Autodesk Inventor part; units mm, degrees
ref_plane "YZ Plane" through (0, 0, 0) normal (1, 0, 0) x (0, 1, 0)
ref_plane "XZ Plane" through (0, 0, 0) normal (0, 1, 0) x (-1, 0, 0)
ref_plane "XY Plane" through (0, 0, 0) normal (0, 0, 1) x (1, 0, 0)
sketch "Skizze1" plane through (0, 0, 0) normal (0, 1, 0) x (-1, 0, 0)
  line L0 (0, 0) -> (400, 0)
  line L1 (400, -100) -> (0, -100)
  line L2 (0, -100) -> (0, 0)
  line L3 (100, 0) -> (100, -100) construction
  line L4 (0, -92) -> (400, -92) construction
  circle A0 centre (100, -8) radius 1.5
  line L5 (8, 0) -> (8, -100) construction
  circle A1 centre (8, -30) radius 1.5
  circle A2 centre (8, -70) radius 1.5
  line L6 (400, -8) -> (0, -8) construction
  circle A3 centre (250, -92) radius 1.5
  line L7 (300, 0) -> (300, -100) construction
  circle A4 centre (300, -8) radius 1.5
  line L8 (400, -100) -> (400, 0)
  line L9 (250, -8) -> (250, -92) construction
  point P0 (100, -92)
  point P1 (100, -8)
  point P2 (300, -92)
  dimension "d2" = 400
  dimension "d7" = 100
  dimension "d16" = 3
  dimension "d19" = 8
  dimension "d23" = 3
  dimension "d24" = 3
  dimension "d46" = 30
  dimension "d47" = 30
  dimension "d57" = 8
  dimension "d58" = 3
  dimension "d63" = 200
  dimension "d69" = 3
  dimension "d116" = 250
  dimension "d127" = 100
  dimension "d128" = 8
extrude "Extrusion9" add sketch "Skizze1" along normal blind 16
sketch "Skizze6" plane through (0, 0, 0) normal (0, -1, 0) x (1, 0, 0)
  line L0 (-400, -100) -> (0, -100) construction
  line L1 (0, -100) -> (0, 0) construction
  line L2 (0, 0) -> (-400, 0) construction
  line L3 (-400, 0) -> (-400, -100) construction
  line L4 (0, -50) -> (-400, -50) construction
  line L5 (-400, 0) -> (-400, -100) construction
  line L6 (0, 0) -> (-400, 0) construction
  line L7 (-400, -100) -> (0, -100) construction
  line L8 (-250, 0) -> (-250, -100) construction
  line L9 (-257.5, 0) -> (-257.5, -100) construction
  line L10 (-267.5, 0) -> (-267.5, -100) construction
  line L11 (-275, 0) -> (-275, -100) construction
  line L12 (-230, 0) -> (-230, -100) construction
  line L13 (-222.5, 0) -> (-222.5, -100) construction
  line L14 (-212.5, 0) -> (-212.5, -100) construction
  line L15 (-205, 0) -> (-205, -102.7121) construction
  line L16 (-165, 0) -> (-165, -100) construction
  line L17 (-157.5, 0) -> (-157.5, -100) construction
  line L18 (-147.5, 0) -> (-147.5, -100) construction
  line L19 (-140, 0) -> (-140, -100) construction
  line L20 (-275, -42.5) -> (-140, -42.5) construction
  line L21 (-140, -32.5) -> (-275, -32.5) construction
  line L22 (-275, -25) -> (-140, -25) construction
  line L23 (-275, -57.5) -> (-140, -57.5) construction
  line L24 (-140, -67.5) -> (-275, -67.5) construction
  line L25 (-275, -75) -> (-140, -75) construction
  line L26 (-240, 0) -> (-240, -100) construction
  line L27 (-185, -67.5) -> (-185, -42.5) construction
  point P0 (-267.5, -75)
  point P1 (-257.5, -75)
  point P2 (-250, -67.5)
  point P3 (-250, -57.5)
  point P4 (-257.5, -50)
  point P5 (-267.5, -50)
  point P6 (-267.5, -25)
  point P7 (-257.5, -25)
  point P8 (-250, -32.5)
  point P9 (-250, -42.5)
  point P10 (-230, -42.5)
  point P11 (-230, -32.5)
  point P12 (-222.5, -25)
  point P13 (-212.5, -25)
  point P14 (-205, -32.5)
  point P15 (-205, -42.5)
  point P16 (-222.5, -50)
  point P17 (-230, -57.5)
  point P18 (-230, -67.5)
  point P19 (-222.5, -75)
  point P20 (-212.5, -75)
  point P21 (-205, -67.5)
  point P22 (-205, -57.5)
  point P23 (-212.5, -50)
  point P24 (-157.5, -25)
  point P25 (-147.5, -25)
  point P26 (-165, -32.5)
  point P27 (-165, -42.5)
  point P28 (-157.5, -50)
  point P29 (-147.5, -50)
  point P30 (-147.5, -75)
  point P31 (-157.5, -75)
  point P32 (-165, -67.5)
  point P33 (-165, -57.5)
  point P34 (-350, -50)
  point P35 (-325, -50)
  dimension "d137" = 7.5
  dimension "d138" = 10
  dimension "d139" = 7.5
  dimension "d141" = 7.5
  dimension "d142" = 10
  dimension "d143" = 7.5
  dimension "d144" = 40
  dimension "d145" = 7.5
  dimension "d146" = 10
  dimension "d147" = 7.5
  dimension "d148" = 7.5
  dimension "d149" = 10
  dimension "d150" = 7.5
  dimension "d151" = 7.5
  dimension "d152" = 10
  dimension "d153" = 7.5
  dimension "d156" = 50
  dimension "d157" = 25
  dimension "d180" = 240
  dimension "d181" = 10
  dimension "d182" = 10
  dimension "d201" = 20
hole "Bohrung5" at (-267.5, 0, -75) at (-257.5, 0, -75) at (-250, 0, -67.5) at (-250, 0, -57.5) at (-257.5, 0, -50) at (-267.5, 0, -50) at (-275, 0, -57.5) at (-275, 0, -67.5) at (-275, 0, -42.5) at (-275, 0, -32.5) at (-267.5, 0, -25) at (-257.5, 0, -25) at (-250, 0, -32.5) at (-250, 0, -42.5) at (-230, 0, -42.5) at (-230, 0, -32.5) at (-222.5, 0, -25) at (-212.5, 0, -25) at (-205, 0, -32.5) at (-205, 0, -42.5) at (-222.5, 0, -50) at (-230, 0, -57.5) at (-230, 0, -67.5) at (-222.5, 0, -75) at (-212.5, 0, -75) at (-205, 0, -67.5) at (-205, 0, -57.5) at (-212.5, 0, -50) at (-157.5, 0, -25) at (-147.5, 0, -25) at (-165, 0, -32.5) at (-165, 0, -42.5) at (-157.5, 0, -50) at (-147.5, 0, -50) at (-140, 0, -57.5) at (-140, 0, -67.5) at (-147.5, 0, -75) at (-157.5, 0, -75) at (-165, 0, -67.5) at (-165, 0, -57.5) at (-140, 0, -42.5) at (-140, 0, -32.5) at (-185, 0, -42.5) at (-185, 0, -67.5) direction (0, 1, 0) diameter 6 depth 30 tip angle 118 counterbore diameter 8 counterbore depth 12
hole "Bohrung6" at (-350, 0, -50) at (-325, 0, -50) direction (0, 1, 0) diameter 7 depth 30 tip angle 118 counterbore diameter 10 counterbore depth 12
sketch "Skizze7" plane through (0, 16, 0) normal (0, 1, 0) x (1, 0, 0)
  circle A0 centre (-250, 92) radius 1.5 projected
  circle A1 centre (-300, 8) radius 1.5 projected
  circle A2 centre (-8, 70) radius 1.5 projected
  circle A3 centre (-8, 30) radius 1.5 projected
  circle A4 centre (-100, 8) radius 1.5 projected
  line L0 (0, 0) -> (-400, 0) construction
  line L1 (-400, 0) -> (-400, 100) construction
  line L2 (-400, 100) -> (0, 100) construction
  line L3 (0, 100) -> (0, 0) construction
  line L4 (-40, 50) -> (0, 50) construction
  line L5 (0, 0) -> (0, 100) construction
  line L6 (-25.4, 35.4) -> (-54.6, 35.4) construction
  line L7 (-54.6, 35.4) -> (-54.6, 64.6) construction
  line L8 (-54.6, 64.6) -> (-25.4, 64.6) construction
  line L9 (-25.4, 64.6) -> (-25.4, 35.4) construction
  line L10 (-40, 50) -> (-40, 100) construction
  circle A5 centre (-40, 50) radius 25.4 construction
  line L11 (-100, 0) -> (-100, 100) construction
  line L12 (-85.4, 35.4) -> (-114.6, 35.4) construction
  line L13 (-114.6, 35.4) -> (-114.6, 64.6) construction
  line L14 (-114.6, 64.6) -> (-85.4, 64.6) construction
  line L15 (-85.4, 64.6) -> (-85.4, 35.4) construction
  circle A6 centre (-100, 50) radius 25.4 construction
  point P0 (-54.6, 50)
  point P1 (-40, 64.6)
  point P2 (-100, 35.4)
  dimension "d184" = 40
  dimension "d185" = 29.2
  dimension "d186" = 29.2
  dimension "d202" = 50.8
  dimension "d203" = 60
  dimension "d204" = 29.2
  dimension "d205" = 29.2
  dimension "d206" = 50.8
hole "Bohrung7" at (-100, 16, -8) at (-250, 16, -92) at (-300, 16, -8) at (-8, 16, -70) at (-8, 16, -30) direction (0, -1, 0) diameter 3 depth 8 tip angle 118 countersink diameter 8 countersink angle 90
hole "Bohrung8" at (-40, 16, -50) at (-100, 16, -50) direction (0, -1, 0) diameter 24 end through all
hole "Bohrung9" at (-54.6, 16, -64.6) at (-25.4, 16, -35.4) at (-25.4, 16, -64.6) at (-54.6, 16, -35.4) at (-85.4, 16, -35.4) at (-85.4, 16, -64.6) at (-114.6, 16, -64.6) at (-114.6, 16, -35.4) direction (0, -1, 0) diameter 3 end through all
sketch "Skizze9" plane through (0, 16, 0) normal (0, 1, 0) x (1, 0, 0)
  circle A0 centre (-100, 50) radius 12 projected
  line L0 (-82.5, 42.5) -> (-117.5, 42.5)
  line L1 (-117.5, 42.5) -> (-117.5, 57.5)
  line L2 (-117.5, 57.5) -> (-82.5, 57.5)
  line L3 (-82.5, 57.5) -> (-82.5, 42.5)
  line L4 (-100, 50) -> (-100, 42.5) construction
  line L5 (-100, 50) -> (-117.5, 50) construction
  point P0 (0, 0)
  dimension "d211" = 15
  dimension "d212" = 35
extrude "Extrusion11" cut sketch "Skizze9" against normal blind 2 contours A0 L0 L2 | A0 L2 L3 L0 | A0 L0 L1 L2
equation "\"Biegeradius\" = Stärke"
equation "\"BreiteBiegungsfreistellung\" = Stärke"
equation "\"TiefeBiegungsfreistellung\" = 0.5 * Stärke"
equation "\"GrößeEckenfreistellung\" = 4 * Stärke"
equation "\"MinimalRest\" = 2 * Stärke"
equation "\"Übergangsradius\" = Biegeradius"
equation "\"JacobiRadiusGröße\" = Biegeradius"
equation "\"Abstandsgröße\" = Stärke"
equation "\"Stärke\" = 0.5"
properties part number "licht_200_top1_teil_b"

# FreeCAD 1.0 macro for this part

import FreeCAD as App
import Part
import Sketcher

V = App.Vector


def add_polygon(sketch, points):
    """Adds a closed chain of lines whose ends are joined by coincident constraints."""
    first, n = sketch.GeometryCount, len(points)
    for a, b in zip(points, points[1:] + points[:1]):
        sketch.addGeometry(Part.LineSegment(App.Vector(*a, 0), App.Vector(*b, 0)), False)
    for i in range(n):
        sketch.addConstraint(Sketcher.Constraint("Coincident", first + i, 2, first + (i + 1) % n, 1))

doc = App.newDocument("Part")
params = doc.addObject("Spreadsheet::Sheet", "Params")
for row, (alias, value) in enumerate([
    ("sketch1_diameter", "3 mm"),
    ("sketch1_width", "400 mm"),
    ("sketch1_height", "100 mm"),
    ("pad1_length", "16 mm"),
    ("sketch2_diameter", "6 mm"),
    ("hole_diameter", "6 mm"),
    ("hole_depth", "30 mm"),
    ("hole_cbore_diameter", "8 mm"),
    ("hole_cbore_depth", "12 mm"),
    ("sketch3_diameter", "7 mm"),
    ("hole2_diameter", "7 mm"),
    ("hole2_depth", "30 mm"),
    ("hole2_cbore_diameter", "10 mm"),
    ("hole2_cbore_depth", "12 mm"),
    ("sketch4_diameter", "3 mm"),
    ("hole3_diameter", "3 mm"),
    ("hole3_depth", "8 mm"),
    ("hole3_csink_diameter", "8 mm"),
    ("sketch5_diameter", "24 mm"),
    ("hole4_diameter", "24 mm"),
    ("sketch6_diameter", "3 mm"),
    ("hole5_diameter", "3 mm"),
    ("sketch7_width", "35 mm"),
    ("sketch7_height", "15 mm"),
    ("pocket1_length", "2 mm"),
], start=1):
    params.set(f"A{row}", alias)
    params.set(f"B{row}", "=" + value)
    params.setAlias(f"B{row}", alias)

body = doc.addObject("PartDesign::Body", "Body")

# Sketch on XZ plane
sketch1 = body.newObject("Sketcher::SketchObject", "Sketch")
sketch1.AttachmentSupport = (doc.getObject("XZ_Plane"), [""])
sketch1.MapMode = "FlatFace"
add_polygon(sketch1, [(-400, 0), (0, 0), (0, -100), (-400, -100)])  # lines 0-3
sketch1.addGeometry(Part.Circle(V(-8, -70, 0), V(0, 0, 1), 1.5), False)  # 4
sketch1.addGeometry(Part.Circle(V(-250, -92, 0), V(0, 0, 1), 1.5), False)  # 5
sketch1.addGeometry(Part.Circle(V(-8, -30, 0), V(0, 0, 1), 1.5), False)  # 6
sketch1.addGeometry(Part.Circle(V(-100, -8, 0), V(0, 0, 1), 1.5), False)  # 7
sketch1.addGeometry(Part.Circle(V(-300, -8, 0), V(0, 0, 1), 1.5), False)  # 8
sketch1.addConstraint([
    Sketcher.Constraint("Horizontal", 0),
    Sketcher.Constraint("Vertical", 1),
    Sketcher.Constraint("Horizontal", 2),
    Sketcher.Constraint("Vertical", 3),
    Sketcher.Constraint("Coincident", 0, 2, -1, 1),
    Sketcher.Constraint("Equal", 4, 5),
    Sketcher.Constraint("Equal", 5, 6),
    Sketcher.Constraint("Equal", 6, 7),
    Sketcher.Constraint("Equal", 7, 8),
    Sketcher.Constraint("Horizontal", 7, 3, 8, 3),
    Sketcher.Constraint("Vertical", 4, 3, 6, 3),
    Sketcher.Constraint("Diameter", 4, 3.0),
    Sketcher.Constraint("DistanceX", 0, 1, 0, 2, 400.0),
    Sketcher.Constraint("DistanceY", 1, 2, 1, 1, 100.0),
    Sketcher.Constraint("DistanceX", 4, 3, -1, 1, 8.0),
    Sketcher.Constraint("DistanceX", 5, 3, -1, 1, 250.0),
    Sketcher.Constraint("DistanceY", 6, 3, -1, 1, 30.0),
    Sketcher.Constraint("DistanceX", 7, 3, -1, 1, 100.0),
    Sketcher.Constraint("DistanceY", 7, 3, -1, 1, 8.0),
    Sketcher.Constraint("DistanceX", 8, 3, 7, 3, 200.0),
    Sketcher.Constraint("DistanceY", 1, 2, 4, 3, 30.0),
    Sketcher.Constraint("DistanceY", 1, 2, 5, 3, 8.0),
])
sketch1.setExpression("Constraints[15]", "Params.sketch1_diameter")
sketch1.setExpression("Constraints[16]", "Params.sketch1_width")
sketch1.setExpression("Constraints[17]", "Params.sketch1_height")
pad1 = body.newObject("PartDesign::Pad", "Pad")
pad1.Profile = sketch1
pad1.setExpression("Length", "Params.pad1_length")
pad1.Reversed = True

# Sketch on XZ plane
sketch2 = body.newObject("Sketcher::SketchObject", "Sketch001")
sketch2.AttachmentSupport = (doc.getObject("XZ_Plane"), [""])
sketch2.MapMode = "FlatFace"
sketch2.addGeometry([
    Part.Circle(V(-267.5, -75, 0), V(0, 0, 1), 3),  # 0
    Part.Circle(V(-257.5, -75, 0), V(0, 0, 1), 3),  # 1
    Part.Circle(V(-250, -67.5, 0), V(0, 0, 1), 3),  # 2
    Part.Circle(V(-250, -57.5, 0), V(0, 0, 1), 3),  # 3
    Part.Circle(V(-257.5, -50, 0), V(0, 0, 1), 3),  # 4
    Part.Circle(V(-267.5, -50, 0), V(0, 0, 1), 3),  # 5
    Part.Circle(V(-275, -57.5, 0), V(0, 0, 1), 3),  # 6
    Part.Circle(V(-275, -67.5, 0), V(0, 0, 1), 3),  # 7
    Part.Circle(V(-275, -42.5, 0), V(0, 0, 1), 3),  # 8
    Part.Circle(V(-275, -32.5, 0), V(0, 0, 1), 3),  # 9
    Part.Circle(V(-267.5, -25, 0), V(0, 0, 1), 3),  # 10
    Part.Circle(V(-257.5, -25, 0), V(0, 0, 1), 3),  # 11
    Part.Circle(V(-250, -32.5, 0), V(0, 0, 1), 3),  # 12
    Part.Circle(V(-250, -42.5, 0), V(0, 0, 1), 3),  # 13
    Part.Circle(V(-230, -42.5, 0), V(0, 0, 1), 3),  # 14
    Part.Circle(V(-230, -32.5, 0), V(0, 0, 1), 3),  # 15
    Part.Circle(V(-222.5, -25, 0), V(0, 0, 1), 3),  # 16
    Part.Circle(V(-212.5, -25, 0), V(0, 0, 1), 3),  # 17
    Part.Circle(V(-205, -32.5, 0), V(0, 0, 1), 3),  # 18
    Part.Circle(V(-205, -42.5, 0), V(0, 0, 1), 3),  # 19
    Part.Circle(V(-222.5, -50, 0), V(0, 0, 1), 3),  # 20
    Part.Circle(V(-230, -57.5, 0), V(0, 0, 1), 3),  # 21
    Part.Circle(V(-230, -67.5, 0), V(0, 0, 1), 3),  # 22
    Part.Circle(V(-222.5, -75, 0), V(0, 0, 1), 3),  # 23
    Part.Circle(V(-212.5, -75, 0), V(0, 0, 1), 3),  # 24
    Part.Circle(V(-205, -67.5, 0), V(0, 0, 1), 3),  # 25
    Part.Circle(V(-205, -57.5, 0), V(0, 0, 1), 3),  # 26
    Part.Circle(V(-212.5, -50, 0), V(0, 0, 1), 3),  # 27
    Part.Circle(V(-157.5, -25, 0), V(0, 0, 1), 3),  # 28
    Part.Circle(V(-147.5, -25, 0), V(0, 0, 1), 3),  # 29
    Part.Circle(V(-165, -32.5, 0), V(0, 0, 1), 3),  # 30
    Part.Circle(V(-165, -42.5, 0), V(0, 0, 1), 3),  # 31
    Part.Circle(V(-157.5, -50, 0), V(0, 0, 1), 3),  # 32
    Part.Circle(V(-147.5, -50, 0), V(0, 0, 1), 3),  # 33
    Part.Circle(V(-140, -57.5, 0), V(0, 0, 1), 3),  # 34
    Part.Circle(V(-140, -67.5, 0), V(0, 0, 1), 3),  # 35
    Part.Circle(V(-147.5, -75, 0), V(0, 0, 1), 3),  # 36
    Part.Circle(V(-157.5, -75, 0), V(0, 0, 1), 3),  # 37
    Part.Circle(V(-165, -67.5, 0), V(0, 0, 1), 3),  # 38
    Part.Circle(V(-165, -57.5, 0), V(0, 0, 1), 3),  # 39
    Part.Circle(V(-140, -42.5, 0), V(0, 0, 1), 3),  # 40
    Part.Circle(V(-140, -32.5, 0), V(0, 0, 1), 3),  # 41
    Part.Circle(V(-185, -42.5, 0), V(0, 0, 1), 3),  # 42
    Part.Circle(V(-185, -67.5, 0), V(0, 0, 1), 3),  # 43
], False)
sketch2.addConstraint([
    Sketcher.Constraint("Equal", 0, 1),
    Sketcher.Constraint("Equal", 1, 2),
    Sketcher.Constraint("Equal", 2, 3),
    Sketcher.Constraint("Equal", 3, 4),
    Sketcher.Constraint("Equal", 4, 5),
    Sketcher.Constraint("Equal", 5, 6),
    Sketcher.Constraint("Equal", 6, 7),
    Sketcher.Constraint("Equal", 7, 8),
    Sketcher.Constraint("Equal", 8, 9),
    Sketcher.Constraint("Equal", 9, 10),
    Sketcher.Constraint("Equal", 10, 11),
    Sketcher.Constraint("Equal", 11, 12),
    Sketcher.Constraint("Equal", 12, 13),
    Sketcher.Constraint("Equal", 13, 14),
    Sketcher.Constraint("Equal", 14, 15),
    Sketcher.Constraint("Equal", 15, 16),
    Sketcher.Constraint("Equal", 16, 17),
    Sketcher.Constraint("Equal", 17, 18),
    Sketcher.Constraint("Equal", 18, 19),
    Sketcher.Constraint("Equal", 19, 20),
    Sketcher.Constraint("Equal", 20, 21),
    Sketcher.Constraint("Equal", 21, 22),
    Sketcher.Constraint("Equal", 22, 23),
    Sketcher.Constraint("Equal", 23, 24),
    Sketcher.Constraint("Equal", 24, 25),
    Sketcher.Constraint("Equal", 25, 26),
    Sketcher.Constraint("Equal", 26, 27),
    Sketcher.Constraint("Equal", 27, 28),
    Sketcher.Constraint("Equal", 28, 29),
    Sketcher.Constraint("Equal", 29, 30),
    Sketcher.Constraint("Equal", 30, 31),
    Sketcher.Constraint("Equal", 31, 32),
    Sketcher.Constraint("Equal", 32, 33),
    Sketcher.Constraint("Equal", 33, 34),
    Sketcher.Constraint("Equal", 34, 35),
    Sketcher.Constraint("Equal", 35, 36),
    Sketcher.Constraint("Equal", 36, 37),
    Sketcher.Constraint("Equal", 37, 38),
    Sketcher.Constraint("Equal", 38, 39),
    Sketcher.Constraint("Equal", 39, 40),
    Sketcher.Constraint("Equal", 40, 41),
    Sketcher.Constraint("Equal", 41, 42),
    Sketcher.Constraint("Equal", 42, 43),
    Sketcher.Constraint("Horizontal", 0, 3, 1, 3),
    Sketcher.Constraint("Horizontal", 4, 3, 5, 3),
    Sketcher.Constraint("Horizontal", 3, 3, 6, 3),
    Sketcher.Constraint("Horizontal", 2, 3, 7, 3),
    Sketcher.Constraint("Horizontal", 10, 3, 11, 3),
    Sketcher.Constraint("Horizontal", 9, 3, 12, 3),
    Sketcher.Constraint("Horizontal", 8, 3, 13, 3),
    Sketcher.Constraint("Horizontal", 13, 3, 14, 3),
    Sketcher.Constraint("Horizontal", 12, 3, 15, 3),
    Sketcher.Constraint("Horizontal", 11, 3, 16, 3),
    Sketcher.Constraint("Horizontal", 16, 3, 17, 3),
    Sketcher.Constraint("Horizontal", 15, 3, 18, 3),
    Sketcher.Constraint("Horizontal", 14, 3, 19, 3),
    Sketcher.Constraint("Horizontal", 5, 3, 20, 3),
    Sketcher.Constraint("Horizontal", 6, 3, 21, 3),
    Sketcher.Constraint("Horizontal", 7, 3, 22, 3),
    Sketcher.Constraint("Horizontal", 1, 3, 23, 3),
    Sketcher.Constraint("Horizontal", 23, 3, 24, 3),
    Sketcher.Constraint("Horizontal", 22, 3, 25, 3),
    Sketcher.Constraint("Horizontal", 21, 3, 26, 3),
    Sketcher.Constraint("Horizontal", 20, 3, 27, 3),
    Sketcher.Constraint("Horizontal", 17, 3, 28, 3),
    Sketcher.Constraint("Horizontal", 28, 3, 29, 3),
    Sketcher.Constraint("Horizontal", 18, 3, 30, 3),
    Sketcher.Constraint("Horizontal", 19, 3, 31, 3),
    Sketcher.Constraint("Horizontal", 27, 3, 32, 3),
    Sketcher.Constraint("Horizontal", 32, 3, 33, 3),
    Sketcher.Constraint("Horizontal", 26, 3, 34, 3),
    Sketcher.Constraint("Horizontal", 25, 3, 35, 3),
    Sketcher.Constraint("Horizontal", 24, 3, 36, 3),
    Sketcher.Constraint("Horizontal", 36, 3, 37, 3),
    Sketcher.Constraint("Horizontal", 35, 3, 38, 3),
    Sketcher.Constraint("Horizontal", 34, 3, 39, 3),
    Sketcher.Constraint("Horizontal", 31, 3, 40, 3),
    Sketcher.Constraint("Horizontal", 30, 3, 41, 3),
    Sketcher.Constraint("Horizontal", 40, 3, 42, 3),
    Sketcher.Constraint("Horizontal", 38, 3, 43, 3),
    Sketcher.Constraint("Vertical", 2, 3, 3, 3),
    Sketcher.Constraint("Vertical", 1, 3, 4, 3),
    Sketcher.Constraint("Vertical", 0, 3, 5, 3),
    Sketcher.Constraint("Vertical", 6, 3, 7, 3),
    Sketcher.Constraint("Vertical", 7, 3, 8, 3),
    Sketcher.Constraint("Vertical", 8, 3, 9, 3),
    Sketcher.Constraint("Vertical", 5, 3, 10, 3),
    Sketcher.Constraint("Vertical", 4, 3, 11, 3),
    Sketcher.Constraint("Vertical", 3, 3, 12, 3),
    Sketcher.Constraint("Vertical", 12, 3, 13, 3),
    Sketcher.Constraint("Vertical", 14, 3, 15, 3),
    Sketcher.Constraint("Vertical", 18, 3, 19, 3),
    Sketcher.Constraint("Vertical", 16, 3, 20, 3),
    Sketcher.Constraint("Vertical", 15, 3, 21, 3),
    Sketcher.Constraint("Vertical", 21, 3, 22, 3),
    Sketcher.Constraint("Vertical", 20, 3, 23, 3),
    Sketcher.Constraint("Vertical", 17, 3, 24, 3),
    Sketcher.Constraint("Vertical", 19, 3, 25, 3),
    Sketcher.Constraint("Vertical", 25, 3, 26, 3),
    Sketcher.Constraint("Vertical", 24, 3, 27, 3),
    Sketcher.Constraint("Vertical", 30, 3, 31, 3),
    Sketcher.Constraint("Vertical", 28, 3, 32, 3),
    Sketcher.Constraint("Vertical", 29, 3, 33, 3),
    Sketcher.Constraint("Vertical", 34, 3, 35, 3),
    Sketcher.Constraint("Vertical", 33, 3, 36, 3),
    Sketcher.Constraint("Vertical", 32, 3, 37, 3),
    Sketcher.Constraint("Vertical", 31, 3, 38, 3),
    Sketcher.Constraint("Vertical", 38, 3, 39, 3),
    Sketcher.Constraint("Vertical", 35, 3, 40, 3),
    Sketcher.Constraint("Vertical", 40, 3, 41, 3),
    Sketcher.Constraint("Vertical", 42, 3, 43, 3),
    Sketcher.Constraint("Diameter", 0, 6.0),
    Sketcher.Constraint("DistanceY", 0, 3, -1, 1, 75.0),
    Sketcher.Constraint("DistanceX", 2, 3, -1, 1, 250.0),
    Sketcher.Constraint("DistanceY", 4, 3, -1, 1, 50.0),
    Sketcher.Constraint("DistanceX", 6, 3, -1, 1, 275.0),
    Sketcher.Constraint("DistanceY", 10, 3, -1, 1, 25.0),
    Sketcher.Constraint("DistanceX", 14, 3, -1, 1, 230.0),
    Sketcher.Constraint("DistanceX", 18, 3, -1, 1, 205.0),
    Sketcher.Constraint("DistanceX", 30, 3, -1, 1, 165.0),
    Sketcher.Constraint("DistanceX", 34, 3, -1, 1, 140.0),
    Sketcher.Constraint("DistanceX", 42, 3, -1, 1, 185.0),
    Sketcher.Constraint("DistanceX", 0, 3, 1, 3, 10.0),
    Sketcher.Constraint("DistanceY", 2, 3, 3, 3, 10.0),
    Sketcher.Constraint("DistanceY", 6, 3, 8, 3, 15.0),
    Sketcher.Constraint("DistanceY", 8, 3, 9, 3, 10.0),
    Sketcher.Constraint("DistanceX", 11, 3, 16, 3, 35.0),
    Sketcher.Constraint("DistanceX", 16, 3, 17, 3, 10.0),
    Sketcher.Constraint("DistanceX", 17, 3, 28, 3, 55.0),
    Sketcher.Constraint("DistanceX", 28, 3, 29, 3, 10.0),
    Sketcher.Constraint("DistanceX", 0, 3, -1, 1, 267.5),
    Sketcher.Constraint("DistanceY", 2, 3, -1, 1, 67.5),
])
sketch2.setExpression("Constraints[111]", "Params.sketch2_diameter")
doc.recompute()
hole = body.newObject("PartDesign::Hole", "Hole")
hole.Profile = sketch2
hole.ThreadType = "None"
hole.setExpression("Diameter", "Params.hole_diameter")
hole.DepthType = "Dimension"
hole.setExpression("Depth", "Params.hole_depth")
hole.DrillPoint = "Angled"
hole.DrillPointAngle = 118
hole.HoleCutType = "Counterbore"
hole.setExpression("HoleCutDiameter", "Params.hole_cbore_diameter")
hole.setExpression("HoleCutDepth", "Params.hole_cbore_depth")

# Sketch on XZ plane
sketch3 = body.newObject("Sketcher::SketchObject", "Sketch002")
sketch3.AttachmentSupport = (doc.getObject("XZ_Plane"), [""])
sketch3.MapMode = "FlatFace"
sketch3.addGeometry([
    Part.Circle(V(-350, -50, 0), V(0, 0, 1), 3.5),
    Part.Circle(V(-325, -50, 0), V(0, 0, 1), 3.5),
], False)
sketch3.addConstraint([
    Sketcher.Constraint("Equal", 0, 1),
    Sketcher.Constraint("Horizontal", 0, 3, 1, 3),
    Sketcher.Constraint("Diameter", 0, 7.0),
    Sketcher.Constraint("DistanceX", 0, 3, -1, 1, 350.0),
    Sketcher.Constraint("DistanceY", 0, 3, -1, 1, 50.0),
    Sketcher.Constraint("DistanceX", 1, 3, -1, 1, 325.0),
])
sketch3.setExpression("Constraints[2]", "Params.sketch3_diameter")
doc.recompute()
hole2 = body.newObject("PartDesign::Hole", "Hole001")
hole2.Profile = sketch3
hole2.ThreadType = "None"
hole2.setExpression("Diameter", "Params.hole2_diameter")
hole2.DepthType = "Dimension"
hole2.setExpression("Depth", "Params.hole2_depth")
hole2.DrillPoint = "Angled"
hole2.DrillPointAngle = 118
hole2.HoleCutType = "Counterbore"
hole2.setExpression("HoleCutDiameter", "Params.hole2_cbore_diameter")
hole2.setExpression("HoleCutDepth", "Params.hole2_cbore_depth")

# Sketch on XZ plane
sketch4 = body.newObject("Sketcher::SketchObject", "Sketch003")
sketch4.AttachmentSupport = (doc.getObject("XZ_Plane"), [""])
sketch4.MapMode = "FlatFace"
sketch4.AttachmentOffset = App.Placement(V(0, 0, -16), App.Rotation())
sketch4.addGeometry([
    Part.Circle(V(-100, -8, 0), V(0, 0, 1), 1.5),  # 0
    Part.Circle(V(-250, -92, 0), V(0, 0, 1), 1.5),  # 1
    Part.Circle(V(-300, -8, 0), V(0, 0, 1), 1.5),  # 2
    Part.Circle(V(-8, -70, 0), V(0, 0, 1), 1.5),  # 3
    Part.Circle(V(-8, -30, 0), V(0, 0, 1), 1.5),  # 4
], False)
sketch4.addConstraint([
    Sketcher.Constraint("Equal", 0, 1),
    Sketcher.Constraint("Equal", 1, 2),
    Sketcher.Constraint("Equal", 2, 3),
    Sketcher.Constraint("Equal", 3, 4),
    Sketcher.Constraint("Horizontal", 0, 3, 2, 3),
    Sketcher.Constraint("Vertical", 3, 3, 4, 3),
    Sketcher.Constraint("Diameter", 0, 3.0),
    Sketcher.Constraint("DistanceX", 0, 3, -1, 1, 100.0),
    Sketcher.Constraint("DistanceY", 0, 3, -1, 1, 8.0),
    Sketcher.Constraint("DistanceX", 1, 3, -1, 1, 250.0),
    Sketcher.Constraint("DistanceY", 1, 3, -1, 1, 92.0),
    Sketcher.Constraint("DistanceX", 2, 3, -1, 1, 300.0),
    Sketcher.Constraint("DistanceX", 3, 3, -1, 1, 8.0),
    Sketcher.Constraint("DistanceY", 3, 3, -1, 1, 70.0),
    Sketcher.Constraint("DistanceY", 4, 3, -1, 1, 30.0),
])
sketch4.setExpression("Constraints[6]", "Params.sketch4_diameter")
doc.recompute()
hole3 = body.newObject("PartDesign::Hole", "Hole002")
hole3.Profile = sketch4
hole3.ThreadType = "None"
hole3.setExpression("Diameter", "Params.hole3_diameter")
hole3.DepthType = "Dimension"
hole3.setExpression("Depth", "Params.hole3_depth")
hole3.DrillPoint = "Angled"
hole3.DrillPointAngle = 118
hole3.HoleCutType = "Countersink"
hole3.setExpression("HoleCutDiameter", "Params.hole3_csink_diameter")
hole3.HoleCutCountersinkAngle = 90
hole3.Reversed = True

# Sketch on XZ plane
sketch5 = body.newObject("Sketcher::SketchObject", "Sketch004")
sketch5.AttachmentSupport = (doc.getObject("XZ_Plane"), [""])
sketch5.MapMode = "FlatFace"
sketch5.AttachmentOffset = App.Placement(V(0, 0, -16), App.Rotation())
sketch5.addGeometry([
    Part.Circle(V(-40, -50, 0), V(0, 0, 1), 12),
    Part.Circle(V(-100, -50, 0), V(0, 0, 1), 12),
], False)
sketch5.addConstraint([
    Sketcher.Constraint("Equal", 0, 1),
    Sketcher.Constraint("Horizontal", 0, 3, 1, 3),
    Sketcher.Constraint("Diameter", 0, 24.0),
    Sketcher.Constraint("DistanceX", 0, 3, -1, 1, 40.0),
    Sketcher.Constraint("DistanceY", 0, 3, -1, 1, 50.0),
    Sketcher.Constraint("DistanceX", 1, 3, -1, 1, 100.0),
])
sketch5.setExpression("Constraints[2]", "Params.sketch5_diameter")
doc.recompute()
hole4 = body.newObject("PartDesign::Hole", "Hole003")
hole4.Profile = sketch5
hole4.ThreadType = "None"
hole4.setExpression("Diameter", "Params.hole4_diameter")
hole4.DepthType = "ThroughAll"
hole4.Reversed = True

# Sketch on XZ plane
sketch6 = body.newObject("Sketcher::SketchObject", "Sketch005")
sketch6.AttachmentSupport = (doc.getObject("XZ_Plane"), [""])
sketch6.MapMode = "FlatFace"
sketch6.AttachmentOffset = App.Placement(V(0, 0, -16), App.Rotation())
sketch6.addGeometry([
    Part.Circle(V(-54.6, -64.6, 0), V(0, 0, 1), 1.5),  # 0
    Part.Circle(V(-25.4, -35.4, 0), V(0, 0, 1), 1.5),  # 1
    Part.Circle(V(-25.4, -64.6, 0), V(0, 0, 1), 1.5),  # 2
    Part.Circle(V(-54.6, -35.4, 0), V(0, 0, 1), 1.5),  # 3
    Part.Circle(V(-85.4, -35.4, 0), V(0, 0, 1), 1.5),  # 4
    Part.Circle(V(-85.4, -64.6, 0), V(0, 0, 1), 1.5),  # 5
    Part.Circle(V(-114.6, -64.6, 0), V(0, 0, 1), 1.5),  # 6
    Part.Circle(V(-114.6, -35.4, 0), V(0, 0, 1), 1.5),  # 7
], False)
sketch6.addConstraint([
    Sketcher.Constraint("Equal", 0, 1),
    Sketcher.Constraint("Equal", 1, 2),
    Sketcher.Constraint("Equal", 2, 3),
    Sketcher.Constraint("Equal", 3, 4),
    Sketcher.Constraint("Equal", 4, 5),
    Sketcher.Constraint("Equal", 5, 6),
    Sketcher.Constraint("Equal", 6, 7),
    Sketcher.Constraint("Horizontal", 0, 3, 2, 3),
    Sketcher.Constraint("Horizontal", 1, 3, 3, 3),
    Sketcher.Constraint("Horizontal", 3, 3, 4, 3),
    Sketcher.Constraint("Horizontal", 2, 3, 5, 3),
    Sketcher.Constraint("Horizontal", 5, 3, 6, 3),
    Sketcher.Constraint("Horizontal", 4, 3, 7, 3),
    Sketcher.Constraint("Vertical", 1, 3, 2, 3),
    Sketcher.Constraint("Vertical", 0, 3, 3, 3),
    Sketcher.Constraint("Vertical", 4, 3, 5, 3),
    Sketcher.Constraint("Vertical", 6, 3, 7, 3),
    Sketcher.Constraint("Diameter", 0, 3.0),
    Sketcher.Constraint("DistanceX", 4, 3, 1, 3, 60.0),
    Sketcher.Constraint("DistanceX", 6, 3, 0, 3, 60.0),
    Sketcher.Constraint("DistanceX", 0, 3, -1, 1, 54.6),
    Sketcher.Constraint("DistanceY", 0, 3, -1, 1, 64.6),
    Sketcher.Constraint("DistanceX", 1, 3, -1, 1, 25.4),
    Sketcher.Constraint("DistanceY", 1, 3, -1, 1, 35.4),
])
sketch6.setExpression("Constraints[17]", "Params.sketch6_diameter")
doc.recompute()
hole5 = body.newObject("PartDesign::Hole", "Hole004")
hole5.Profile = sketch6
hole5.ThreadType = "None"
hole5.setExpression("Diameter", "Params.hole5_diameter")
hole5.DepthType = "ThroughAll"
hole5.Reversed = True

# Sketch on XZ plane
sketch7 = body.newObject("Sketcher::SketchObject", "Sketch006")
sketch7.AttachmentSupport = (doc.getObject("XZ_Plane"), [""])
sketch7.MapMode = "FlatFace"
sketch7.AttachmentOffset = App.Placement(V(0, 0, -16), App.Rotation())
add_polygon(sketch7, [(-82, -42), (-82, -58), (-118, -58), (-118, -42)])  # lines 0-3
sketch7.addConstraint([
    Sketcher.Constraint("Vertical", 0),
    Sketcher.Constraint("Horizontal", 1),
    Sketcher.Constraint("Vertical", 2),
    Sketcher.Constraint("Horizontal", 3),
    Sketcher.Constraint("DistanceX", 1, 2, 1, 1, 35.0),
    Sketcher.Constraint("DistanceY", 0, 2, 0, 1, 15.0),
    Sketcher.Constraint("DistanceX", 0, 2, -1, 1, 82.5),
    Sketcher.Constraint("DistanceY", 0, 2, -1, 1, 57.5),
])
sketch7.setExpression("Constraints[8]", "Params.sketch7_width")
sketch7.setExpression("Constraints[9]", "Params.sketch7_height")
pocket1 = body.newObject("PartDesign::Pocket", "Pocket")
pocket1.Profile = sketch7
pocket1.setExpression("Length", "Params.pocket1_length")
pocket1.Reversed = True

doc.recompute()
